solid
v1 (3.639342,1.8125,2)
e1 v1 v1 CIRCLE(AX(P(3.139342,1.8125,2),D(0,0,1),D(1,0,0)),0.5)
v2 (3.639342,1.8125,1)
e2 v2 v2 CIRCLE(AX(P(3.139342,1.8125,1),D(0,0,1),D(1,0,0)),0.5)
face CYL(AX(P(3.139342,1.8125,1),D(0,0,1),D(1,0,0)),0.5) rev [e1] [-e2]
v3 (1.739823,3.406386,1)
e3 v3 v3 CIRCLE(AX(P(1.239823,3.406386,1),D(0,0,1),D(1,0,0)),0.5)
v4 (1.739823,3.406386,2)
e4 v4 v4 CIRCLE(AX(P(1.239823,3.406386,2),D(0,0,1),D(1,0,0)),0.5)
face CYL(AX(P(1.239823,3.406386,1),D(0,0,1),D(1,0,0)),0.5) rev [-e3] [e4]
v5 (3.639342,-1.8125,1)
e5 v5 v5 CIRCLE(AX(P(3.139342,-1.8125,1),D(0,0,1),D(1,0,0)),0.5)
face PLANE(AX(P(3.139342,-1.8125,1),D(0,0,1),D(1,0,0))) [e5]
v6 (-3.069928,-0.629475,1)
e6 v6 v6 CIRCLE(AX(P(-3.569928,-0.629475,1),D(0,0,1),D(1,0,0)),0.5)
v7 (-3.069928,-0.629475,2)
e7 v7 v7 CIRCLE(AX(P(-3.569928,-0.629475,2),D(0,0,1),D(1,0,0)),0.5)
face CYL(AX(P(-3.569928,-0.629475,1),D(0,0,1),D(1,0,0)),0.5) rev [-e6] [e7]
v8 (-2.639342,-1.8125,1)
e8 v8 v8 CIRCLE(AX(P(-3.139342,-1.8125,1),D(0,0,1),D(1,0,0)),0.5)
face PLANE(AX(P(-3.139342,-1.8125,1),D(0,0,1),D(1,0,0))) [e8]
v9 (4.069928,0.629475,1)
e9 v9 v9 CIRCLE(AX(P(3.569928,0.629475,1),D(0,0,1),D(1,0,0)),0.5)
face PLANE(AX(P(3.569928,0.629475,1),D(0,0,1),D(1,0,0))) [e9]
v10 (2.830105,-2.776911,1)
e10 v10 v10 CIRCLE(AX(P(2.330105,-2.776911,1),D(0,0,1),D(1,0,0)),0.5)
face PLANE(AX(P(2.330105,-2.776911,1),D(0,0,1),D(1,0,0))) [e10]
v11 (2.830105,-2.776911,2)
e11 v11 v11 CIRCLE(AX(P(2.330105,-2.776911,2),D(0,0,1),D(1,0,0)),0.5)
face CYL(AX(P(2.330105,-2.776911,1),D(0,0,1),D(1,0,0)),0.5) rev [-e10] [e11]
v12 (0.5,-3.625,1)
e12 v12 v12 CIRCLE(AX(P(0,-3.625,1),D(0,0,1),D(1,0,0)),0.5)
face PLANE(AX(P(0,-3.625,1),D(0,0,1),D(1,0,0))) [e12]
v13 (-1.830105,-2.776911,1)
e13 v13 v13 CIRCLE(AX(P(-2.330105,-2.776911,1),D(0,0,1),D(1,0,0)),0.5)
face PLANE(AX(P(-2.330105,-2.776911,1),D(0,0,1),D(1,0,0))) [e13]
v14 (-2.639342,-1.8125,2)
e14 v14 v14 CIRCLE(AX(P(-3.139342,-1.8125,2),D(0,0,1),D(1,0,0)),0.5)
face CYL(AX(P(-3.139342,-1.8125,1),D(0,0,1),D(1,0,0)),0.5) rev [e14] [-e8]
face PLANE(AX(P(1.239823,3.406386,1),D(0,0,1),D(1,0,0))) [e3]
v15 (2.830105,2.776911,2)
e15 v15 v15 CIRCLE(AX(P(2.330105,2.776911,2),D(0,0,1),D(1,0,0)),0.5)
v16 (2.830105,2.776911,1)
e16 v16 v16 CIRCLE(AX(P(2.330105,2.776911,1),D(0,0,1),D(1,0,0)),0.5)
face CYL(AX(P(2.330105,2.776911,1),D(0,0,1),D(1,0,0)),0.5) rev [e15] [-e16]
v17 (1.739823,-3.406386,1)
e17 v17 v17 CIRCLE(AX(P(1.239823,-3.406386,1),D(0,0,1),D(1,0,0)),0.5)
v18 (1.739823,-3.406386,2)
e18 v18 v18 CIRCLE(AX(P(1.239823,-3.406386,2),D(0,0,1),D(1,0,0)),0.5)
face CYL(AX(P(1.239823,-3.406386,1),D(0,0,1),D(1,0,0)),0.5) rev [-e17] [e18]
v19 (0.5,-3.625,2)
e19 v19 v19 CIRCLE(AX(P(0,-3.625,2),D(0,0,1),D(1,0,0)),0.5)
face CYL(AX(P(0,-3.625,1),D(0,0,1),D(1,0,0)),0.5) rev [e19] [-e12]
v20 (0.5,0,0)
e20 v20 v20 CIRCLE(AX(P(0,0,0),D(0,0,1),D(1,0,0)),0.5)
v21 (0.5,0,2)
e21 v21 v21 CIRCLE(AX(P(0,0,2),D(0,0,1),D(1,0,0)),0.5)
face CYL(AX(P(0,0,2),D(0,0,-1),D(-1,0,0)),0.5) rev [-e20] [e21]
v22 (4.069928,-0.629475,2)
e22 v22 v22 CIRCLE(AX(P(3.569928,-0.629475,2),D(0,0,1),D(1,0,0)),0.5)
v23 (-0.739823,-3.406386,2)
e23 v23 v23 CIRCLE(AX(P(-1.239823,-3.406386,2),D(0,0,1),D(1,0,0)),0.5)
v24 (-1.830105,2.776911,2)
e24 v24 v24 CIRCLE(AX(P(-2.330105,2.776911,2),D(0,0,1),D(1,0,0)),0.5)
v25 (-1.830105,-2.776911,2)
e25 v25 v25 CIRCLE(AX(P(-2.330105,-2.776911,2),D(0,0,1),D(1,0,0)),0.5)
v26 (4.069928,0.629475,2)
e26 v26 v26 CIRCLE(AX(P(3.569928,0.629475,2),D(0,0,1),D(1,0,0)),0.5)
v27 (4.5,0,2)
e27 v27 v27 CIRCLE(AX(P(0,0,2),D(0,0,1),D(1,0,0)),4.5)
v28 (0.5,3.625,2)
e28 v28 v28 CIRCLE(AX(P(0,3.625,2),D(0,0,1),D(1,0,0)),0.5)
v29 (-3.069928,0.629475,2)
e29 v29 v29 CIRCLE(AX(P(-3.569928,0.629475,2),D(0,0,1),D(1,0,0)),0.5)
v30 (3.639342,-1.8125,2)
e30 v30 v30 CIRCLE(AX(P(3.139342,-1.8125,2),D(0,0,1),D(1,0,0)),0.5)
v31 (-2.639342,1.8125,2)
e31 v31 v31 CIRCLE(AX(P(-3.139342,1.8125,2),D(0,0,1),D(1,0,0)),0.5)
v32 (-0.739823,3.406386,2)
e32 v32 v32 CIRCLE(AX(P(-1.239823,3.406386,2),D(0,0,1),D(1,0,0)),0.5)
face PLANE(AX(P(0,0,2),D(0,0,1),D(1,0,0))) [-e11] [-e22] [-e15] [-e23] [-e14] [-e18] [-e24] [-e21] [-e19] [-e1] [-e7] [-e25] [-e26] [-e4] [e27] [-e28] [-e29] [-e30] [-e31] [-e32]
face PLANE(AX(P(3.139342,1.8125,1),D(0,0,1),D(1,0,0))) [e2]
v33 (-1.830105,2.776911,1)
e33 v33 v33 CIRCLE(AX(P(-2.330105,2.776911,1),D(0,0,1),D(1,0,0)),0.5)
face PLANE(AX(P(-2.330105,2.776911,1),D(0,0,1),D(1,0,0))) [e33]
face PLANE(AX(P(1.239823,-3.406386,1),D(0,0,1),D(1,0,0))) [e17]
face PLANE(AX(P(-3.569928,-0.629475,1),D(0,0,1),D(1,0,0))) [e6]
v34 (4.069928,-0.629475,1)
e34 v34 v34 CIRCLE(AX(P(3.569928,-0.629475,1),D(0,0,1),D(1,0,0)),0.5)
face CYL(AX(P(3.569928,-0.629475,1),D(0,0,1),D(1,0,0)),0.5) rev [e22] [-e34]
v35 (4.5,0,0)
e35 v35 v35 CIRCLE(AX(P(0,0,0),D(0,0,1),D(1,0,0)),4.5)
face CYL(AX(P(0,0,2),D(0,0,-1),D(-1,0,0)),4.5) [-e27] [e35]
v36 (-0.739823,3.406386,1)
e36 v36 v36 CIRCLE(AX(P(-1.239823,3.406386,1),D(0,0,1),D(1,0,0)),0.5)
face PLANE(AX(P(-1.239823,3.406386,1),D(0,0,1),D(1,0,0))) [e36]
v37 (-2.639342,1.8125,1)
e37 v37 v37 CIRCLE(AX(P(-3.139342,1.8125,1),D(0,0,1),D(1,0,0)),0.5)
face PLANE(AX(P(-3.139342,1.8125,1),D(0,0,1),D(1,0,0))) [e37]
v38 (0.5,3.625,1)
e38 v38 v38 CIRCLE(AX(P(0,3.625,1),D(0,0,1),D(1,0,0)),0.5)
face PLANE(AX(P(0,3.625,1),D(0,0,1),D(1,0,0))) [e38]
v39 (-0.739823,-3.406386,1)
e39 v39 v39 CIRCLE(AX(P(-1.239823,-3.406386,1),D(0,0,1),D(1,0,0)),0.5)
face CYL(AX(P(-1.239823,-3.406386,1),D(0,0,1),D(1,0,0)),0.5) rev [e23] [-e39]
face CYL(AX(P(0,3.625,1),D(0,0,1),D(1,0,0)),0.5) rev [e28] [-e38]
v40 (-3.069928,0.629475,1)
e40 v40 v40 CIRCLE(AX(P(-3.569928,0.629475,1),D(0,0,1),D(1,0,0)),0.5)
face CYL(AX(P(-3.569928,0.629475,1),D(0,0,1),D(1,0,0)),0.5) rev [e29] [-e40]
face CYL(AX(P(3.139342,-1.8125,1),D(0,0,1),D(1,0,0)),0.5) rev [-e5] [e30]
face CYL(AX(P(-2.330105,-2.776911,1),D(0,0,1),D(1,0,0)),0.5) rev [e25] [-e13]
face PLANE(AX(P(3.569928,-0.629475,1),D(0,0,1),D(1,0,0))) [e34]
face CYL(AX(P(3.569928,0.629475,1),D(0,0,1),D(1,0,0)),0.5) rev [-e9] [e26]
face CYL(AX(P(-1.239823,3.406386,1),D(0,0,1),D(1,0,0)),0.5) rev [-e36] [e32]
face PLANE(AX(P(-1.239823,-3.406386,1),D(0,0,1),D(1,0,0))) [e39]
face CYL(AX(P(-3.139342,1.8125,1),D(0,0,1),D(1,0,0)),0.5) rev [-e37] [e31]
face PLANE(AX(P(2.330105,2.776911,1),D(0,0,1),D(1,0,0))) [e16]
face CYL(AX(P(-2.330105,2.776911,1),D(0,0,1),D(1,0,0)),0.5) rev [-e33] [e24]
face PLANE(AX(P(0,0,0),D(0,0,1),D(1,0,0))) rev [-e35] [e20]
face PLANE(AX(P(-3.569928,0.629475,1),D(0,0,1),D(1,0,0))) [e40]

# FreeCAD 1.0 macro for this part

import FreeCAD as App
import Part
import Sketcher

V = App.Vector

doc = App.newDocument("Part")
body = doc.addObject("PartDesign::Body", "Body")

# Sketch on XY plane
sketch1 = body.newObject("Sketcher::SketchObject", "Sketch")
sketch1.AttachmentSupport = (doc.getObject("XY_Plane"), [""])
sketch1.MapMode = "FlatFace"
sketch1.addGeometry([
    Part.Circle(V(0, 0, 0), V(0, 0, 1), 4.5),
    Part.Circle(V(0, 0, 0), V(0, 0, 1), 0.5),
], False)
sketch1.addConstraint([
    Sketcher.Constraint("Coincident", 0, 3, -1, 1),
    Sketcher.Constraint("Coincident", 1, 3, -1, 1),
    Sketcher.Constraint("Diameter", 0, 9.0),
    Sketcher.Constraint("Diameter", 1, 1.0),
])
pad1 = body.newObject("PartDesign::Pad", "Pad")
pad1.Profile = sketch1
pad1.Length = 2

# Sketch on XY plane
sketch2 = body.newObject("Sketcher::SketchObject", "Sketch001")
sketch2.AttachmentSupport = (doc.getObject("XY_Plane"), [""])
sketch2.MapMode = "FlatFace"
sketch2.AttachmentOffset = App.Placement(V(0, 0, 2), App.Rotation())
sketch2.addGeometry([
    Part.Circle(V(0, 3.625, 0), V(0, 0, 1), 0.5),  # 0
    Part.Circle(V(1.239823, 3.406386, 0), V(0, 0, 1), 0.5),  # 1
    Part.Circle(V(2.330105, 2.776911, 0), V(0, 0, 1), 0.5),  # 2
    Part.Circle(V(3.139342, 1.8125, 0), V(0, 0, 1), 0.5),  # 3
    Part.Circle(V(3.569928, 0.629475, 0), V(0, 0, 1), 0.5),  # 4
    Part.Circle(V(3.569928, -0.629475, 0), V(0, 0, 1), 0.5),  # 5
    Part.Circle(V(3.139342, -1.8125, 0), V(0, 0, 1), 0.5),  # 6
    Part.Circle(V(2.330105, -2.776911, 0), V(0, 0, 1), 0.5),  # 7
    Part.Circle(V(1.239823, -3.406386, 0), V(0, 0, 1), 0.5),  # 8
    Part.Circle(V(0, -3.625, 0), V(0, 0, 1), 0.5),  # 9
    Part.Circle(V(-1.239823, -3.406386, 0), V(0, 0, 1), 0.5),  # 10
    Part.Circle(V(-2.330105, -2.776911, 0), V(0, 0, 1), 0.5),  # 11
    Part.Circle(V(-3.139342, -1.8125, 0), V(0, 0, 1), 0.5),  # 12
    Part.Circle(V(-3.569928, -0.629475, 0), V(0, 0, 1), 0.5),  # 13
    Part.Circle(V(-3.569928, 0.629475, 0), V(0, 0, 1), 0.5),  # 14
    Part.Circle(V(-3.139342, 1.8125, 0), V(0, 0, 1), 0.5),  # 15
    Part.Circle(V(-2.330105, 2.776911, 0), V(0, 0, 1), 0.5),  # 16
    Part.Circle(V(-1.239823, 3.406386, 0), V(0, 0, 1), 0.5),  # 17
], False)
sketch2.addConstraint([
    Sketcher.Constraint("Equal", 0, 1),
    Sketcher.Constraint("Equal", 1, 2),
    Sketcher.Constraint("Equal", 2, 3),
    Sketcher.Constraint("Equal", 3, 4),
    Sketcher.Constraint("Equal", 4, 5),
    Sketcher.Constraint("Equal", 5, 6),
    Sketcher.Constraint("Equal", 6, 7),
    Sketcher.Constraint("Equal", 7, 8),
    Sketcher.Constraint("Equal", 8, 9),
    Sketcher.Constraint("Equal", 9, 10),
    Sketcher.Constraint("Equal", 10, 11),
    Sketcher.Constraint("Equal", 11, 12),
    Sketcher.Constraint("Equal", 12, 13),
    Sketcher.Constraint("Equal", 13, 14),
    Sketcher.Constraint("Equal", 14, 15),
    Sketcher.Constraint("Equal", 15, 16),
    Sketcher.Constraint("Equal", 16, 17),
    Sketcher.Constraint("Symmetric", 0, 3, 9, 3, -1, 1),
    Sketcher.Constraint("Symmetric", 1, 3, 10, 3, -1, 1),
    Sketcher.Constraint("Symmetric", 2, 3, 11, 3, -1, 1),
    Sketcher.Constraint("Symmetric", 3, 3, 12, 3, -1, 1),
    Sketcher.Constraint("Symmetric", 4, 3, 13, 3, -1, 1),
    Sketcher.Constraint("Symmetric", 5, 3, 14, 3, -1, 1),
    Sketcher.Constraint("Symmetric", 6, 3, 15, 3, -1, 1),
    Sketcher.Constraint("Symmetric", 7, 3, 16, 3, -1, 1),
    Sketcher.Constraint("Symmetric", 8, 3, 17, 3, -1, 1),
    Sketcher.Constraint("Symmetric", 8, 3, 10, 3, -2),
    Sketcher.Constraint("Symmetric", 7, 3, 11, 3, -2),
    Sketcher.Constraint("Symmetric", 6, 3, 12, 3, -2),
    Sketcher.Constraint("Symmetric", 5, 3, 13, 3, -2),
    Sketcher.Constraint("PointOnObject", 0, 3, -2),
    Sketcher.Constraint("Diameter", 0, 1.0),
    Sketcher.Constraint("DistanceY", -1, 1, 0, 3, 3.625),
    Sketcher.Constraint("DistanceY", 6, 3, 3, 3, 3.625),
    Sketcher.Constraint("DistanceY", -1, 1, 2, 3, 2.776911),
    Sketcher.Constraint("DistanceX", -1, 1, 4, 3, 3.569928),
    Sketcher.Constraint("DistanceX", 1, 3, 3, 3, 1.899519),
    Sketcher.Constraint("DistanceY", 4, 3, 1, 3, 2.776911),
    Sketcher.Constraint("DistanceY", 5, 3, 4, 3, 1.258949),
    Sketcher.Constraint("DistanceX", 10, 3, 7, 3, 3.569928),
    Sketcher.Constraint("DistanceX", 10, 3, 5, 3, 4.809751),
])
pocket1 = body.newObject("PartDesign::Pocket", "Pocket")
pocket1.Profile = sketch2
pocket1.Length = 1

doc.recompute()
